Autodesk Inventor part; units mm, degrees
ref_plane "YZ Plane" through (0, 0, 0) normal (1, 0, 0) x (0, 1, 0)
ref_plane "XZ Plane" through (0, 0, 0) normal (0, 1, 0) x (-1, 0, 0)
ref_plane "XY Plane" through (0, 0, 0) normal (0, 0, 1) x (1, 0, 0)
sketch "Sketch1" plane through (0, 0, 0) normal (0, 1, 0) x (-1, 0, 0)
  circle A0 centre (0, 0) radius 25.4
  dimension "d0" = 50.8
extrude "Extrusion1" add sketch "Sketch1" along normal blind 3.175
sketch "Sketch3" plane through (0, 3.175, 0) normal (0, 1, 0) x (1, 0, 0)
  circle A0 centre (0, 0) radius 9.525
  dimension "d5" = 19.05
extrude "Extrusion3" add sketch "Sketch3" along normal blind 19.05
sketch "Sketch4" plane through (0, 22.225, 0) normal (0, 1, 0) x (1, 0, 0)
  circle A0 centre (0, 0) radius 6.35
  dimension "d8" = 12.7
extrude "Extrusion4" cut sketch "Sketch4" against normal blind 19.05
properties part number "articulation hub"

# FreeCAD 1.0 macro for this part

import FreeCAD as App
import Part
import Sketcher
from FreeCAD import Vector
Q = App.Units.Quantity

doc = App.newDocument("Part")
body = doc.addObject("PartDesign::Body", "Body")

# Sketch on XZ plane
sketch1 = body.newObject("Sketcher::SketchObject", "Sketch")
sketch1.AttachmentSupport = (doc.getObject("XZ_Plane"), [""])
sketch1.MapMode = "FlatFace"
sketch1.addGeometry(Part.Circle(Vector(0, 0, 0), Vector(0, 0, 1), 25.4), False)
sketch1.addConstraint([
    Sketcher.Constraint("Coincident", 0, 3, -1, 1),
    Sketcher.Constraint("Diameter", 0, Q("2 in")),
])
pad1 = body.newObject("PartDesign::Pad", "Pad")
pad1.Profile = sketch1
pad1.Length = Q("0.125 in")
pad1.Reversed = True

# Sketch on XZ plane
sketch2 = body.newObject("Sketcher::SketchObject", "Sketch001")
sketch2.AttachmentSupport = (doc.getObject("XZ_Plane"), [""])
sketch2.MapMode = "FlatFace"
sketch2.AttachmentOffset = App.Placement(Vector(0, 0, -0.125 * 25.4), App.Rotation())
sketch2.addGeometry(Part.Circle(Vector(0, 0, 0), Vector(0, 0, 1), 9.525), False)
sketch2.addConstraint([
    Sketcher.Constraint("Coincident", 0, 3, -1, 1),
    Sketcher.Constraint("Diameter", 0, Q("0.75 in")),
])
pad2 = body.newObject("PartDesign::Pad", "Pad001")
pad2.Profile = sketch2
pad2.Length = Q("0.75 in")
pad2.Reversed = True

# Sketch on XZ plane
sketch3 = body.newObject("Sketcher::SketchObject", "Sketch002")
sketch3.AttachmentSupport = (doc.getObject("XZ_Plane"), [""])
sketch3.MapMode = "FlatFace"
sketch3.AttachmentOffset = App.Placement(Vector(0, 0, -0.875 * 25.4), App.Rotation())
sketch3.addGeometry(Part.Circle(Vector(0, 0, 0), Vector(0, 0, 1), 6.35), False)
sketch3.addConstraint([
    Sketcher.Constraint("Coincident", 0, 3, -1, 1),
    Sketcher.Constraint("Diameter", 0, Q("0.5 in")),
])
pocket1 = body.newObject("PartDesign::Pocket", "Pocket")
pocket1.Profile = sketch3
pocket1.Length = Q("0.75 in")
pocket1.Reversed = True

doc.recompute()
